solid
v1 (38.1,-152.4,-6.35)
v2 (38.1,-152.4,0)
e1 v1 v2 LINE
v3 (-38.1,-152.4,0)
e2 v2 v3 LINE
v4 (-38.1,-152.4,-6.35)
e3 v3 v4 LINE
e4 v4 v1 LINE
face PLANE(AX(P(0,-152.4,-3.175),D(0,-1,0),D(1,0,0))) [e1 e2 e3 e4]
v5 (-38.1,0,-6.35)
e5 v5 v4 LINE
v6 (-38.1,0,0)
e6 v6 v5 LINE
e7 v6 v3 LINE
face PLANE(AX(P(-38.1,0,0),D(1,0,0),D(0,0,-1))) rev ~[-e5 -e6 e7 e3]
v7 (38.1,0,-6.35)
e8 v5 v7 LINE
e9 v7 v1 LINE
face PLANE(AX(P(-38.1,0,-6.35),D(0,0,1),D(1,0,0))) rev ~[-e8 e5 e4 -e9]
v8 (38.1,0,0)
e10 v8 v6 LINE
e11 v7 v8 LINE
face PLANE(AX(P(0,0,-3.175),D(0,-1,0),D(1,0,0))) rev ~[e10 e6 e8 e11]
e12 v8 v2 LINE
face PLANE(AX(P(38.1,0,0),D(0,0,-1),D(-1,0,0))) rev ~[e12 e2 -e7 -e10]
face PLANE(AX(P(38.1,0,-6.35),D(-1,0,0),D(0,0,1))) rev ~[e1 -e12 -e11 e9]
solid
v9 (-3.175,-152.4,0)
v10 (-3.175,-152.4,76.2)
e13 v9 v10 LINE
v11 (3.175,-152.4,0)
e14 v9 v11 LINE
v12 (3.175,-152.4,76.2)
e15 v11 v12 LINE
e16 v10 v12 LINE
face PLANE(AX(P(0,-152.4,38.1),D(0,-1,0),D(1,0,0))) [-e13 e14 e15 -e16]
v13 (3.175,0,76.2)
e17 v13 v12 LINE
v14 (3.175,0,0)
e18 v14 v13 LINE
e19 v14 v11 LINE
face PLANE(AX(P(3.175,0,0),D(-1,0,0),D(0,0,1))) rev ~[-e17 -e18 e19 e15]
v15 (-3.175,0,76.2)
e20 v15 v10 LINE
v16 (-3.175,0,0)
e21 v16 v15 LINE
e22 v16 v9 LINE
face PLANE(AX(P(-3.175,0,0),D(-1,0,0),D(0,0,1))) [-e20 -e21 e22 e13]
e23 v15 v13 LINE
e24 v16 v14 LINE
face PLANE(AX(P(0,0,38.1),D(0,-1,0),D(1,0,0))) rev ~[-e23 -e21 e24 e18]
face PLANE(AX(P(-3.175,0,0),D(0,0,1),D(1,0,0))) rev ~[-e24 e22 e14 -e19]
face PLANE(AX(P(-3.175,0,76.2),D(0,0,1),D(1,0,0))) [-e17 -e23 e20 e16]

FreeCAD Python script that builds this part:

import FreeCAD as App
import Part
import Sketcher
from FreeCAD import Vector
Q = App.Units.Quantity

doc = App.newDocument("Part")
body = doc.addObject("PartDesign::Body", "Body")

# Sketch on XZ plane
sketch1 = body.newObject("Sketcher::SketchObject", "Sketch")
sketch1.AttachmentSupport = (doc.getObject("XZ_Plane"), [""])
sketch1.MapMode = "FlatFace"
sketch1.addGeometry(Part.LineSegment(Vector(-3, 76, 0), Vector(-3, 0, 0)), False)
sketch1.addGeometry(Part.LineSegment(Vector(-3, 0, 0), Vector(3, 0, 0)), False)
sketch1.addGeometry(Part.LineSegment(Vector(3, 0, 0), Vector(3, 76, 0)), False)
sketch1.addGeometry(Part.LineSegment(Vector(3, 76, 0), Vector(-3, 76, 0)), False)
sketch1.addConstraint(Sketcher.Constraint("Coincident", 0, 2, 1, 1))
sketch1.addConstraint(Sketcher.Constraint("Coincident", 1, 2, 2, 1))
sketch1.addConstraint(Sketcher.Constraint("Coincident", 2, 2, 3, 1))
sketch1.addConstraint(Sketcher.Constraint("Coincident", 3, 2, 0, 1))
sketch1.addConstraint(Sketcher.Constraint("Vertical", 0))
sketch1.addConstraint(Sketcher.Constraint("Horizontal", 1))
sketch1.addConstraint(Sketcher.Constraint("Vertical", 2))
sketch1.addConstraint(Sketcher.Constraint("Horizontal", 3))
sketch1.addConstraint(Sketcher.Constraint("Symmetric", 0, 2, 1, 2, -1, 1))
sketch1.addConstraint(Sketcher.Constraint("DistanceY", 0, 2, 0, 1, Q("3 in")))
sketch1.addConstraint(Sketcher.Constraint("DistanceX", 1, 1, 1, 2, Q("0.25 in")))
pad1 = body.newObject("PartDesign::Pad", "Pad")
pad1.Profile = sketch1
pad1.Length = Q("6 in")
body2 = doc.addObject("PartDesign::Body", "Body001")

# Sketch on XZ plane
sketch2 = body2.newObject("Sketcher::SketchObject", "Sketch001")
sketch2.AttachmentSupport = (doc.getObject("XZ_Plane001"), [""])
sketch2.MapMode = "FlatFace"
sketch2.addGeometry(Part.LineSegment(Vector(-38, 0, 0), Vector(-38, -6, 0)), False)
sketch2.addGeometry(Part.LineSegment(Vector(-38, -6, 0), Vector(38, -6, 0)), False)
sketch2.addGeometry(Part.LineSegment(Vector(38, -6, 0), Vector(38, 0, 0)), False)
sketch2.addGeometry(Part.LineSegment(Vector(38, 0, 0), Vector(-38, 0, 0)), False)
sketch2.addConstraint(Sketcher.Constraint("Coincident", 0, 2, 1, 1))
sketch2.addConstraint(Sketcher.Constraint("Coincident", 1, 2, 2, 1))
sketch2.addConstraint(Sketcher.Constraint("Coincident", 2, 2, 3, 1))
sketch2.addConstraint(Sketcher.Constraint("Coincident", 3, 2, 0, 1))
sketch2.addConstraint(Sketcher.Constraint("Vertical", 0))
sketch2.addConstraint(Sketcher.Constraint("Horizontal", 1))
sketch2.addConstraint(Sketcher.Constraint("Vertical", 2))
sketch2.addConstraint(Sketcher.Constraint("Horizontal", 3))
sketch2.addConstraint(Sketcher.Constraint("Symmetric", 2, 2, 3, 2, -1, 1))
sketch2.addConstraint(Sketcher.Constraint("DistanceX", 1, 1, 1, 2, Q("3 in")))
sketch2.addConstraint(Sketcher.Constraint("DistanceY", 0, 2, 0, 1, Q("0.25 in")))
pad2 = body2.newObject("PartDesign::Pad", "Pad001")
pad2.Profile = sketch2
pad2.Length = Q("6 in")

doc.recompute()
